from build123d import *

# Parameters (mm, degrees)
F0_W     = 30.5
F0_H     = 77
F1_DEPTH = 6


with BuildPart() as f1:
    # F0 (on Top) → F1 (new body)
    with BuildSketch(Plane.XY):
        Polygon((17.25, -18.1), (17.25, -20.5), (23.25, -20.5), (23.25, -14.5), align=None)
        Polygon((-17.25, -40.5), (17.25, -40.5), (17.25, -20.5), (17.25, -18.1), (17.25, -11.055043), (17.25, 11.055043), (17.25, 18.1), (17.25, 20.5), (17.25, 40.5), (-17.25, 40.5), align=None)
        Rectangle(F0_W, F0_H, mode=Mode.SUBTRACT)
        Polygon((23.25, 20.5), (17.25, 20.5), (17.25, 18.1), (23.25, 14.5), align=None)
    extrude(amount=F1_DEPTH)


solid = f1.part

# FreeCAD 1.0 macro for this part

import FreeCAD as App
import Part
import Sketcher
Q = App.Units.Quantity

doc = App.newDocument("Part")
body = doc.addObject("PartDesign::Body", "Body")

sketch1 = body.newObject("Sketcher::SketchObject", "Sketch")
sketch1.AttachmentSupport = (doc.getObject("XY_Plane"), [""])
sketch1.MapMode = "FlatFace"
sketch1.addGeometry(Part.LineSegment(App.Vector(17, -20, 0), App.Vector(23, -20, 0)), False)
sketch1.addGeometry(Part.LineSegment(App.Vector(23, -20, 0), App.Vector(23, -14, 0)), False)
sketch1.addGeometry(Part.LineSegment(App.Vector(23, -14, 0), App.Vector(17, -18, 0)), False)
sketch1.addGeometry(Part.LineSegment(App.Vector(17, -18, 0), App.Vector(17, 18, 0)), False)
sketch1.addGeometry(Part.LineSegment(App.Vector(17, 18, 0), App.Vector(23, 14, 0)), False)
sketch1.addGeometry(Part.LineSegment(App.Vector(23, 14, 0), App.Vector(23, 20, 0)), False)
sketch1.addGeometry(Part.LineSegment(App.Vector(23, 20, 0), App.Vector(17, 20, 0)), False)
sketch1.addGeometry(Part.LineSegment(App.Vector(17, 20, 0), App.Vector(17, 40, 0)), False)
sketch1.addGeometry(Part.LineSegment(App.Vector(17, 40, 0), App.Vector(-17, 40, 0)), False)
sketch1.addGeometry(Part.LineSegment(App.Vector(-17, 40, 0), App.Vector(-17, -40, 0)), False)
sketch1.addGeometry(Part.LineSegment(App.Vector(-17, -40, 0), App.Vector(17, -40, 0)), False)
sketch1.addGeometry(Part.LineSegment(App.Vector(17, -40, 0), App.Vector(17, -20, 0)), False)
sketch1.addGeometry(Part.LineSegment(App.Vector(15, -38, 0), App.Vector(-15, -38, 0)), False)
sketch1.addGeometry(Part.LineSegment(App.Vector(-15, -38, 0), App.Vector(-15, 38, 0)), False)
sketch1.addGeometry(Part.LineSegment(App.Vector(-15, 38, 0), App.Vector(15, 38, 0)), False)
sketch1.addGeometry(Part.LineSegment(App.Vector(15, 38, 0), App.Vector(15, -38, 0)), False)
sketch1.addConstraint(Sketcher.Constraint("Coincident", 0, 2, 1, 1))
sketch1.addConstraint(Sketcher.Constraint("Coincident", 1, 2, 2, 1))
sketch1.addConstraint(Sketcher.Constraint("Coincident", 2, 2, 3, 1))
sketch1.addConstraint(Sketcher.Constraint("Coincident", 3, 2, 4, 1))
sketch1.addConstraint(Sketcher.Constraint("Coincident", 4, 2, 5, 1))
sketch1.addConstraint(Sketcher.Constraint("Coincident", 5, 2, 6, 1))
sketch1.addConstraint(Sketcher.Constraint("Coincident", 6, 2, 7, 1))
sketch1.addConstraint(Sketcher.Constraint("Coincident", 7, 2, 8, 1))
sketch1.addConstraint(Sketcher.Constraint("Coincident", 8, 2, 9, 1))
sketch1.addConstraint(Sketcher.Constraint("Coincident", 9, 2, 10, 1))
sketch1.addConstraint(Sketcher.Constraint("Coincident", 10, 2, 11, 1))
sketch1.addConstraint(Sketcher.Constraint("Coincident", 11, 2, 0, 1))
sketch1.addConstraint(Sketcher.Constraint("Coincident", 12, 2, 13, 1))
sketch1.addConstraint(Sketcher.Constraint("Coincident", 13, 2, 14, 1))
sketch1.addConstraint(Sketcher.Constraint("Coincident", 14, 2, 15, 1))
sketch1.addConstraint(Sketcher.Constraint("Coincident", 15, 2, 12, 1))
sketch1.addConstraint(Sketcher.Constraint("Horizontal", 0))
sketch1.addConstraint(Sketcher.Constraint("Vertical", 1))
sketch1.addConstraint(Sketcher.Constraint("Vertical", 3))
sketch1.addConstraint(Sketcher.Constraint("Vertical", 5))
sketch1.addConstraint(Sketcher.Constraint("Horizontal", 6))
sketch1.addConstraint(Sketcher.Constraint("Vertical", 7))
sketch1.addConstraint(Sketcher.Constraint("Horizontal", 8))
sketch1.addConstraint(Sketcher.Constraint("Vertical", 9))
sketch1.addConstraint(Sketcher.Constraint("Horizontal", 10))
sketch1.addConstraint(Sketcher.Constraint("Vertical", 11))
sketch1.addConstraint(Sketcher.Constraint("Horizontal", 12))
sketch1.addConstraint(Sketcher.Constraint("Vertical", 13))
sketch1.addConstraint(Sketcher.Constraint("Horizontal", 14))
sketch1.addConstraint(Sketcher.Constraint("Vertical", 15))
sketch1.addConstraint(Sketcher.Constraint("Symmetric", 7, 2, 9, 2, -1, 1))
sketch1.addConstraint(Sketcher.Constraint("Symmetric", 12, 2, 14, 2, -1, 1))
sketch1.addConstraint(Sketcher.Constraint("Symmetric", 1, 2, 4, 2, -1))
sketch1.addConstraint(Sketcher.Constraint("Symmetric", 6, 2, 11, 2, -1))
sketch1.addConstraint(Sketcher.Constraint("Vertical", 3, 2, 6, 2))
sketch1.addConstraint(Sketcher.Constraint("Equal", 6, 1))
sketch1.addConstraint(Sketcher.Constraint("Equal", 2, 4))
sketch1.addConstraint(Sketcher.Constraint("DistanceX", 0, 1, 0, 2, Q("6 mm")))
sketch1.addConstraint(Sketcher.Constraint("DistanceY", 7, 1, 7, 2, Q("20 mm")))
sketch1.addConstraint(Sketcher.Constraint("DistanceY", 9, 2, 9, 1, Q("81 mm")))
sketch1.addConstraint(Sketcher.Constraint("DistanceY", 13, 1, 13, 2, Q("77 mm")))
sketch1.addConstraint(Sketcher.Constraint("DistanceX", 8, 2, 8, 1, Q("34.5 mm")))
sketch1.addConstraint(Sketcher.Constraint("DistanceX", 12, 2, 12, 1, Q("30.5 mm")))
sketch1.addConstraint(Sketcher.Constraint("DistanceY", 3, 1, 3, 2, Q("36.2 mm")))
pad1 = body.newObject("PartDesign::Pad", "Pad")
pad1.Profile = sketch1
pad1.Length = 6

doc.recompute()
